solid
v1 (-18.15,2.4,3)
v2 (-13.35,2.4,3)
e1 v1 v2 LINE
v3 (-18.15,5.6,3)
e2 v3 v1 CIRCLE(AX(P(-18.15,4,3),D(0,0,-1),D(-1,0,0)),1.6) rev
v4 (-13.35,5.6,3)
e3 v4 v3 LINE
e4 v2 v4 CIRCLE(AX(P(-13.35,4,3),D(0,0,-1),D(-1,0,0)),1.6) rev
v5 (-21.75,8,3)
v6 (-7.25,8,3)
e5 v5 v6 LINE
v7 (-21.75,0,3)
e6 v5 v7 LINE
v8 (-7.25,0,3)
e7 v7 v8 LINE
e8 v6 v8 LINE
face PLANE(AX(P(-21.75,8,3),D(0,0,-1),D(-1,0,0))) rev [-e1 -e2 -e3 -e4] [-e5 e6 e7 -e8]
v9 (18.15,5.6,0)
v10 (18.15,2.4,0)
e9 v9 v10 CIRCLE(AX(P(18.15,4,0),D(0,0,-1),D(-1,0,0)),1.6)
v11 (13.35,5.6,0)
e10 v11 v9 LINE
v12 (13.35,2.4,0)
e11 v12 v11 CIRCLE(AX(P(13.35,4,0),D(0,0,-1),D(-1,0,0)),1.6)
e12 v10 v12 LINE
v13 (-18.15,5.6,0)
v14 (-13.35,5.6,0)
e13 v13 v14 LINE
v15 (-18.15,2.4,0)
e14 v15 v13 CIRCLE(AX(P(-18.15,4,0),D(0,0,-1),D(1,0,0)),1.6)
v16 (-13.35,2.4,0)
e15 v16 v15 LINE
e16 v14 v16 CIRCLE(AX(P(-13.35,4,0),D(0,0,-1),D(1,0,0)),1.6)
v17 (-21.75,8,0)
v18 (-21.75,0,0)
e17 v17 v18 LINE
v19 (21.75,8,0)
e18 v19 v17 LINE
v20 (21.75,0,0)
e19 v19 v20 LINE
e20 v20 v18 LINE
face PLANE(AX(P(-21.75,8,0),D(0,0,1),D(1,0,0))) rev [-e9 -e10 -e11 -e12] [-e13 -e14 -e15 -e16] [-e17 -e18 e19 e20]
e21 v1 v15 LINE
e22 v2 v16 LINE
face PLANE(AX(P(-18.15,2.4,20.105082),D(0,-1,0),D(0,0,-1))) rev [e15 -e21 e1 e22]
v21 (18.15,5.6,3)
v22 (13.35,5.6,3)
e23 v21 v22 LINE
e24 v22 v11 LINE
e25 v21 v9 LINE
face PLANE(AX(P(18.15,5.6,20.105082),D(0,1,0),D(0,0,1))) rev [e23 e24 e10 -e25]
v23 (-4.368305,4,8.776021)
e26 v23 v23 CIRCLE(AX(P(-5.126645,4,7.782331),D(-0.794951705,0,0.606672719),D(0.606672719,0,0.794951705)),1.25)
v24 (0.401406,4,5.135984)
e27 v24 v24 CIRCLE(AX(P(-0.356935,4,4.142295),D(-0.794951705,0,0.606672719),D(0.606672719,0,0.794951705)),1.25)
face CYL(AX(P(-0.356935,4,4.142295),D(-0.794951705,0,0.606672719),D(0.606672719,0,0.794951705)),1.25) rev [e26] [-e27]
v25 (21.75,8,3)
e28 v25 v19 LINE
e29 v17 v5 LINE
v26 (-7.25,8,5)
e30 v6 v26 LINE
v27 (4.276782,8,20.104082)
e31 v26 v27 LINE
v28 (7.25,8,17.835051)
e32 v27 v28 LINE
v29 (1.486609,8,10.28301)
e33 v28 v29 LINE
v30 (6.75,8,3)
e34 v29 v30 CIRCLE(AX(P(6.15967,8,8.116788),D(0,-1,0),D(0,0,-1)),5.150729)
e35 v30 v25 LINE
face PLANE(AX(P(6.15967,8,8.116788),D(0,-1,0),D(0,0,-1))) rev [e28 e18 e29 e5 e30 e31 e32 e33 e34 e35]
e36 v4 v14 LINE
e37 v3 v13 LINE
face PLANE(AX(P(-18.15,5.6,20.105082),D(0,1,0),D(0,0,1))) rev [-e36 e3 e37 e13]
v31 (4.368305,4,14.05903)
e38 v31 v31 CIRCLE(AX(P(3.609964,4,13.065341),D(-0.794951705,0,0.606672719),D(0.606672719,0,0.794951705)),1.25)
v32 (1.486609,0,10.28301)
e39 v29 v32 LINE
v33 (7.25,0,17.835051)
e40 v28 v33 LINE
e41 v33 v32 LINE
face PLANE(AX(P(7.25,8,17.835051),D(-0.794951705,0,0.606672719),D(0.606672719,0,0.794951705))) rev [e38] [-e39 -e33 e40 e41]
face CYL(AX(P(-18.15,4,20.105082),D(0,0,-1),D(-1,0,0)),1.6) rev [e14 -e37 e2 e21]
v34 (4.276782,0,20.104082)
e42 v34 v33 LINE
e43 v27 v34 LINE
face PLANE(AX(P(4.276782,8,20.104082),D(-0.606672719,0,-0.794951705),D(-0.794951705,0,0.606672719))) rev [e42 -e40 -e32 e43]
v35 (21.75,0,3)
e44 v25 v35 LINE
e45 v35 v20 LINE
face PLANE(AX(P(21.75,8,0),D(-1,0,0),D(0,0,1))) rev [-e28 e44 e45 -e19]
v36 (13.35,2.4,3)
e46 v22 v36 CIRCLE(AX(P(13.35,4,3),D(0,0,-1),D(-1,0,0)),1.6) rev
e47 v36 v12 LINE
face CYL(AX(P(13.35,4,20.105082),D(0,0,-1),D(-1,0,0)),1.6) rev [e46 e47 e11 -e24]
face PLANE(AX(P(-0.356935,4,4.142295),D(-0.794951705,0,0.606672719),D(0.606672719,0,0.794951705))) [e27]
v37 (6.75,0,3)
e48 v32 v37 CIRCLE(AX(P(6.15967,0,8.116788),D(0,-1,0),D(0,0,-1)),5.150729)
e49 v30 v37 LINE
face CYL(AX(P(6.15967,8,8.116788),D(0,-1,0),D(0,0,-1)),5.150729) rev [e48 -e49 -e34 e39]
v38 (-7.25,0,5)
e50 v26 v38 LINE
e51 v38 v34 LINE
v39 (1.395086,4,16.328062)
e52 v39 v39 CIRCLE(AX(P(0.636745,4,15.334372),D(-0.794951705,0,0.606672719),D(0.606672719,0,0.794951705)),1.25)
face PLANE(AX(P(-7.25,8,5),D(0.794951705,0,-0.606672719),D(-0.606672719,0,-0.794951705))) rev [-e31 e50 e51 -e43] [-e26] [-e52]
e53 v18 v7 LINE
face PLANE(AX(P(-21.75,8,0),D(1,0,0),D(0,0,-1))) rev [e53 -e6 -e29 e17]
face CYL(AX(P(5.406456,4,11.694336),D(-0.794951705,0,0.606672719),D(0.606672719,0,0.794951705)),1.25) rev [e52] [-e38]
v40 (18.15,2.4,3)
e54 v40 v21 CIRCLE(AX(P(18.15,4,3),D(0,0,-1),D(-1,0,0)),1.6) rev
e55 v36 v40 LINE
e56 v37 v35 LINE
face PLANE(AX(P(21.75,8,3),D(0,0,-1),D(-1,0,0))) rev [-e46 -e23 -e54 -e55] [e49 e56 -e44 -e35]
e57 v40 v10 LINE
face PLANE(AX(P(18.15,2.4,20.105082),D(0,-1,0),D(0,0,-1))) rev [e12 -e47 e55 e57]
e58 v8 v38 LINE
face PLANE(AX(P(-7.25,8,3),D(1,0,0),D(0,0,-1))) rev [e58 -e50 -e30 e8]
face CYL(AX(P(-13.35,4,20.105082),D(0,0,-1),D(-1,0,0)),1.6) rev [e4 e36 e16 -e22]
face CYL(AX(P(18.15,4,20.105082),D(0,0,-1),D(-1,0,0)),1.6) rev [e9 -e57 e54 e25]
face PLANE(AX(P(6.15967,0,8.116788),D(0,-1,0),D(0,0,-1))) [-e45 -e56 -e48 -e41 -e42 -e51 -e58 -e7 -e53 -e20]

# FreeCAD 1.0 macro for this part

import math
import FreeCAD as App
import Part
import Sketcher

doc = App.newDocument("Part")
body = doc.addObject("PartDesign::Body", "Body")

# Sketch on XZ plane
sketch1 = body.newObject("Sketcher::SketchObject", "Sketch")
sketch1.AttachmentSupport = (doc.getObject("XZ_Plane"), [""])
sketch1.MapMode = "FlatFace"
sketch1.addGeometry(Part.LineSegment(App.Vector(21.8, 0, 0), App.Vector(-21.8, 0, 0)), False)
sketch1.addGeometry(Part.LineSegment(App.Vector(-21.8, 0, 0), App.Vector(-21.8, 3, 0)), False)
sketch1.addGeometry(Part.LineSegment(App.Vector(-21.8, 3, 0), App.Vector(-7.2, 3, 0)), False)
sketch1.addGeometry(Part.LineSegment(App.Vector(-7.2, 3, 0), App.Vector(-7.2, 5, 0)), False)
sketch1.addGeometry(Part.LineSegment(App.Vector(-7.2, 5, 0), App.Vector(4.3, 20.1, 0)), False)
sketch1.addGeometry(Part.LineSegment(App.Vector(4.3, 20.1, 0), App.Vector(7.2, 17.8, 0)), False)
sketch1.addGeometry(Part.LineSegment(App.Vector(7.2, 17.8, 0), App.Vector(1.5, 10.3, 0)), False)
sketch1.addGeometry(Part.ArcOfCircle(Part.Circle(App.Vector(6.2, 8.1, 0), App.Vector(0, 0, 1), 5.2), math.radians(155), math.radians(277)), False)
sketch1.addGeometry(Part.LineSegment(App.Vector(6.8, 3, 0), App.Vector(21.8, 3, 0)), False)
sketch1.addGeometry(Part.LineSegment(App.Vector(21.8, 3, 0), App.Vector(21.8, 0, 0)), False)
sketch1.addConstraint(Sketcher.Constraint("Coincident", 0, 2, 1, 1))
sketch1.addConstraint(Sketcher.Constraint("Coincident", 1, 2, 2, 1))
sketch1.addConstraint(Sketcher.Constraint("Coincident", 2, 2, 3, 1))
sketch1.addConstraint(Sketcher.Constraint("Coincident", 3, 2, 4, 1))
sketch1.addConstraint(Sketcher.Constraint("Coincident", 4, 2, 5, 1))
sketch1.addConstraint(Sketcher.Constraint("Coincident", 5, 2, 6, 1))
sketch1.addConstraint(Sketcher.Constraint("Coincident", 6, 2, 7, 1))
sketch1.addConstraint(Sketcher.Constraint("Coincident", 7, 2, 8, 1))
sketch1.addConstraint(Sketcher.Constraint("Coincident", 8, 2, 9, 1))
sketch1.addConstraint(Sketcher.Constraint("Coincident", 9, 2, 0, 1))
sketch1.addConstraint(Sketcher.Constraint("Horizontal", 0))
sketch1.addConstraint(Sketcher.Constraint("Vertical", 1))
sketch1.addConstraint(Sketcher.Constraint("Horizontal", 2))
sketch1.addConstraint(Sketcher.Constraint("Vertical", 3))
sketch1.addConstraint(Sketcher.Constraint("Horizontal", 8))
sketch1.addConstraint(Sketcher.Constraint("Vertical", 9))
sketch1.addConstraint(Sketcher.Constraint("Symmetric", 0, 2, 9, 2, -1, 1))
sketch1.addConstraint(Sketcher.Constraint("Perpendicular", 4, 5))
sketch1.addConstraint(Sketcher.Constraint("Perpendicular", 5, 6))
sketch1.addConstraint(Sketcher.Constraint("Horizontal", 2, 2, 7, 2))
sketch1.addConstraint(Sketcher.Constraint("DistanceX", 8, 1, 8, 2, 15.0))
sketch1.addConstraint(Sketcher.Constraint("DistanceY", 1, 1, 1, 2, 3.0))
sketch1.addConstraint(Sketcher.Constraint("DistanceY", 3, 1, 3, 2, 2.0))
sketch1.addConstraint(Sketcher.Constraint("Distance", 4, 19.0))
sketch1.addConstraint(Sketcher.Constraint("DistanceX", 0, 2, 0, 1, 43.5))
sketch1.addConstraint(Sketcher.Constraint("DistanceX", 2, 1, 2, 2, 14.5))
sketch1.addConstraint(Sketcher.Constraint("DistanceX", 1, 2, 5, 2, 29.0))
sketch1.addConstraint(Sketcher.Constraint("Distance", 6, 9.5))
sketch1.addConstraint(Sketcher.Constraint("Radius", 7, 5.150729))
sketch1.addConstraint(Sketcher.Constraint("DistanceX", -1, 1, 7, 3, 6.15967))
pad1 = body.newObject("PartDesign::Pad", "Pad")
pad1.Profile = sketch1
pad1.Length = 8
pad1.Reversed = True

# Sketch on XY plane
sketch2 = body.newObject("Sketcher::SketchObject", "Sketch001")
sketch2.AttachmentSupport = (doc.getObject("XY_Plane"), [""])
sketch2.MapMode = "FlatFace"
sketch2.addGeometry(Part.LineSegment(App.Vector(13.3, 5.6, 0), App.Vector(18.1, 5.6, 0)), False)
sketch2.addGeometry(Part.ArcOfCircle(Part.Circle(App.Vector(18.1, 4, 0), App.Vector(0, 0, 1), 1.6), math.radians(-90), math.radians(90)), False)
sketch2.addGeometry(Part.LineSegment(App.Vector(18.1, 2.4, 0), App.Vector(13.3, 2.4, 0)), False)
sketch2.addGeometry(Part.ArcOfCircle(Part.Circle(App.Vector(13.3, 4, 0), App.Vector(0, 0, 1), 1.6), math.radians(90), math.radians(270)), False)
sketch2.addConstraint(Sketcher.Constraint("Tangent", 0, 2, 1, 2))
sketch2.addConstraint(Sketcher.Constraint("Tangent", 1, 1, 2, 1))
sketch2.addConstraint(Sketcher.Constraint("Tangent", 2, 2, 3, 2))
sketch2.addConstraint(Sketcher.Constraint("Tangent", 3, 1, 0, 1))
sketch2.addConstraint(Sketcher.Constraint("Horizontal", 0))
sketch2.addConstraint(Sketcher.Constraint("Horizontal", 2))
sketch2.addConstraint(Sketcher.Constraint("Radius", 1, 1.6))
sketch2.addConstraint(Sketcher.Constraint("DistanceX", 0, 1, 0, 2, 4.8))
sketch2.addConstraint(Sketcher.Constraint("DistanceY", -1, 1, 1, 3, 4.0))
sketch2.addConstraint(Sketcher.Constraint("DistanceX", -1, 1, 1, 3, 18.15))
pocket1 = body.newObject("PartDesign::Pocket", "Pocket")
pocket1.Profile = sketch2
pocket1.Type = "UpToFirst"
pocket1.Reversed = True

# Sketch on XY plane
sketch3 = body.newObject("Sketcher::SketchObject", "Sketch002")
sketch3.AttachmentSupport = (doc.getObject("XY_Plane"), [""])
sketch3.MapMode = "FlatFace"
sketch3.addGeometry(Part.LineSegment(App.Vector(-18.1, 5.6, 0), App.Vector(-13.3, 5.6, 0)), False)
sketch3.addGeometry(Part.ArcOfCircle(Part.Circle(App.Vector(-13.3, 4, 0), App.Vector(0, 0, 1), 1.6), math.radians(-90), math.radians(90)), False)
sketch3.addGeometry(Part.LineSegment(App.Vector(-13.3, 2.4, 0), App.Vector(-18.1, 2.4, 0)), False)
sketch3.addGeometry(Part.ArcOfCircle(Part.Circle(App.Vector(-18.1, 4, 0), App.Vector(0, 0, 1), 1.6), math.radians(90), math.radians(270)), False)
sketch3.addConstraint(Sketcher.Constraint("Tangent", 0, 2, 1, 2))
sketch3.addConstraint(Sketcher.Constraint("Tangent", 1, 1, 2, 1))
sketch3.addConstraint(Sketcher.Constraint("Tangent", 2, 2, 3, 2))
sketch3.addConstraint(Sketcher.Constraint("Tangent", 3, 1, 0, 1))
sketch3.addConstraint(Sketcher.Constraint("Horizontal", 0))
sketch3.addConstraint(Sketcher.Constraint("Horizontal", 2))
sketch3.addConstraint(Sketcher.Constraint("Radius", 1, 1.6))
sketch3.addConstraint(Sketcher.Constraint("DistanceX", 0, 1, 0, 2, 4.8))
sketch3.addConstraint(Sketcher.Constraint("DistanceY", -1, 1, 1, 3, 4.0))
sketch3.addConstraint(Sketcher.Constraint("DistanceX", 1, 3, -1, 1, 13.35))
pocket2 = body.newObject("PartDesign::Pocket", "Pocket001")
pocket2.Profile = sketch3
pocket2.Type = "UpToFirst"
pocket2.Reversed = True

# Sketch on an angled plane
sketch4 = body.newObject("Sketcher::SketchObject", "Sketch003")
sketch4.Placement = App.Placement(App.Vector(-6.993002, 0, 5.336756), App.Rotation(App.Vector(0.606672719, 0, 0.794951704), App.Vector(0, 1, 0), App.Vector(-0.794951704, 0, 0.606672719), "ZXY"))
sketch4.addGeometry(Part.Circle(App.Vector(12.6, 4, 0), App.Vector(0, 0, 1), 1.2), False)
sketch4.addGeometry(Part.Circle(App.Vector(3.1, 4, 0), App.Vector(0, 0, 1), 1.2), False)
sketch4.addConstraint(Sketcher.Constraint("Equal", 0, 1))
sketch4.addConstraint(Sketcher.Constraint("Horizontal", 0, 3, 1, 3))
sketch4.addConstraint(Sketcher.Constraint("Diameter", 0, 2.5))
sketch4.addConstraint(Sketcher.Constraint("DistanceY", -1, 1, 0, 3, 4.0))
sketch4.addConstraint(Sketcher.Constraint("DistanceX", 1, 3, 0, 3, 9.5))
sketch4.addConstraint(Sketcher.Constraint("DistanceX", -1, 1, 0, 3, 12.576381))
pocket3 = body.newObject("PartDesign::Pocket", "Pocket002")
pocket3.Profile = sketch4
pocket3.Length = 6

doc.recompute()
